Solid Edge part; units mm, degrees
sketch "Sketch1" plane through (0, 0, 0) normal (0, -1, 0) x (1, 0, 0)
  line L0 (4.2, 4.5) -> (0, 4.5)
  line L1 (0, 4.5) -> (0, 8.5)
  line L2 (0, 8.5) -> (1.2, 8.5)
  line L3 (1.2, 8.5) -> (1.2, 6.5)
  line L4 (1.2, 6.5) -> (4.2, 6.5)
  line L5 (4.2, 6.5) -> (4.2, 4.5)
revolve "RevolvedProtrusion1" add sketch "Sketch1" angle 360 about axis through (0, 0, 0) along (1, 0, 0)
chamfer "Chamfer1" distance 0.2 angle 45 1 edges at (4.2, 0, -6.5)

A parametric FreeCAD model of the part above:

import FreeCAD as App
import Part
import Sketcher

V = App.Vector
Q = App.Units.Quantity


def edges_at(feature, points):
    """Names of the edges that pass closest to the given points."""
    edges = feature.Shape.Edges
    near = lambda p: min(range(len(edges)), key=lambda i: edges[i].distToShape(Part.Vertex(*p))[0])
    return sorted({f"Edge{near(p) + 1}" for p in points})

doc = App.newDocument("Part")
body = doc.addObject("PartDesign::Body", "Body")

# Sketch on XZ plane
sketch1 = doc.addObject("Sketcher::SketchObject", "Sketch")
body.addObject(sketch1)
sketch1.AttachmentSupport = (doc.XZ_Plane, [""])
sketch1.MapMode = "FlatFace"
sketch1.addGeometry([
    Part.LineSegment(V(0, 4.5, 0), V(4.2, 4.5, 0)),  # 0
    Part.LineSegment(V(4.2, 4.5, 0), V(4.2, 6.5, 0)),  # 1
    Part.LineSegment(V(4.2, 6.5, 0), V(1.2, 6.5, 0)),  # 2
    Part.LineSegment(V(1.2, 6.5, 0), V(1.2, 8.5, 0)),  # 3
    Part.LineSegment(V(1.2, 8.5, 0), V(0, 8.5, 0)),  # 4
    Part.LineSegment(V(0, 8.5, 0), V(0, 4.5, 0)),  # 5
], False)
sketch1.addConstraint([
    Sketcher.Constraint("Coincident", 0, 2, 1, 1),
    Sketcher.Constraint("Coincident", 1, 2, 2, 1),
    Sketcher.Constraint("Coincident", 2, 2, 3, 1),
    Sketcher.Constraint("Coincident", 3, 2, 4, 1),
    Sketcher.Constraint("Coincident", 4, 2, 5, 1),
    Sketcher.Constraint("Coincident", 5, 2, 0, 1),
    Sketcher.Constraint("Horizontal", 0),
    Sketcher.Constraint("Vertical", 1),
    Sketcher.Constraint("Horizontal", 2),
    Sketcher.Constraint("Vertical", 3),
    Sketcher.Constraint("Horizontal", 4),
    Sketcher.Constraint("Vertical", 5),
    Sketcher.Constraint("PointOnObject", 4, 2, -2),
    Sketcher.Constraint("Equal", 1, 3),
    Sketcher.Constraint("DistanceX", 2, 2, 2, 1, Q("3 mm")),
    Sketcher.Constraint("DistanceY", 1, 1, 1, 2, Q("2 mm")),
    Sketcher.Constraint("DistanceX", 0, 1, 0, 2, Q("4.2 mm")),
    Sketcher.Constraint("DistanceY", -1, 1, 0, 2, Q("4.5 mm")),
])
revolution = doc.addObject("PartDesign::Revolution", "Revolution")
body.addObject(revolution)
revolution.Profile = sketch1
revolution.ReferenceAxis = (sketch1, ["H_Axis"])
revolution.Angle = 360
doc.recompute()

chamfer = doc.addObject("PartDesign::Chamfer", "Chamfer")
body.addObject(chamfer)
chamfer.Base = (revolution, edges_at(revolution, [(4.2, 0, -6.5)]))
chamfer.Size = 0.2

doc.recompute()
